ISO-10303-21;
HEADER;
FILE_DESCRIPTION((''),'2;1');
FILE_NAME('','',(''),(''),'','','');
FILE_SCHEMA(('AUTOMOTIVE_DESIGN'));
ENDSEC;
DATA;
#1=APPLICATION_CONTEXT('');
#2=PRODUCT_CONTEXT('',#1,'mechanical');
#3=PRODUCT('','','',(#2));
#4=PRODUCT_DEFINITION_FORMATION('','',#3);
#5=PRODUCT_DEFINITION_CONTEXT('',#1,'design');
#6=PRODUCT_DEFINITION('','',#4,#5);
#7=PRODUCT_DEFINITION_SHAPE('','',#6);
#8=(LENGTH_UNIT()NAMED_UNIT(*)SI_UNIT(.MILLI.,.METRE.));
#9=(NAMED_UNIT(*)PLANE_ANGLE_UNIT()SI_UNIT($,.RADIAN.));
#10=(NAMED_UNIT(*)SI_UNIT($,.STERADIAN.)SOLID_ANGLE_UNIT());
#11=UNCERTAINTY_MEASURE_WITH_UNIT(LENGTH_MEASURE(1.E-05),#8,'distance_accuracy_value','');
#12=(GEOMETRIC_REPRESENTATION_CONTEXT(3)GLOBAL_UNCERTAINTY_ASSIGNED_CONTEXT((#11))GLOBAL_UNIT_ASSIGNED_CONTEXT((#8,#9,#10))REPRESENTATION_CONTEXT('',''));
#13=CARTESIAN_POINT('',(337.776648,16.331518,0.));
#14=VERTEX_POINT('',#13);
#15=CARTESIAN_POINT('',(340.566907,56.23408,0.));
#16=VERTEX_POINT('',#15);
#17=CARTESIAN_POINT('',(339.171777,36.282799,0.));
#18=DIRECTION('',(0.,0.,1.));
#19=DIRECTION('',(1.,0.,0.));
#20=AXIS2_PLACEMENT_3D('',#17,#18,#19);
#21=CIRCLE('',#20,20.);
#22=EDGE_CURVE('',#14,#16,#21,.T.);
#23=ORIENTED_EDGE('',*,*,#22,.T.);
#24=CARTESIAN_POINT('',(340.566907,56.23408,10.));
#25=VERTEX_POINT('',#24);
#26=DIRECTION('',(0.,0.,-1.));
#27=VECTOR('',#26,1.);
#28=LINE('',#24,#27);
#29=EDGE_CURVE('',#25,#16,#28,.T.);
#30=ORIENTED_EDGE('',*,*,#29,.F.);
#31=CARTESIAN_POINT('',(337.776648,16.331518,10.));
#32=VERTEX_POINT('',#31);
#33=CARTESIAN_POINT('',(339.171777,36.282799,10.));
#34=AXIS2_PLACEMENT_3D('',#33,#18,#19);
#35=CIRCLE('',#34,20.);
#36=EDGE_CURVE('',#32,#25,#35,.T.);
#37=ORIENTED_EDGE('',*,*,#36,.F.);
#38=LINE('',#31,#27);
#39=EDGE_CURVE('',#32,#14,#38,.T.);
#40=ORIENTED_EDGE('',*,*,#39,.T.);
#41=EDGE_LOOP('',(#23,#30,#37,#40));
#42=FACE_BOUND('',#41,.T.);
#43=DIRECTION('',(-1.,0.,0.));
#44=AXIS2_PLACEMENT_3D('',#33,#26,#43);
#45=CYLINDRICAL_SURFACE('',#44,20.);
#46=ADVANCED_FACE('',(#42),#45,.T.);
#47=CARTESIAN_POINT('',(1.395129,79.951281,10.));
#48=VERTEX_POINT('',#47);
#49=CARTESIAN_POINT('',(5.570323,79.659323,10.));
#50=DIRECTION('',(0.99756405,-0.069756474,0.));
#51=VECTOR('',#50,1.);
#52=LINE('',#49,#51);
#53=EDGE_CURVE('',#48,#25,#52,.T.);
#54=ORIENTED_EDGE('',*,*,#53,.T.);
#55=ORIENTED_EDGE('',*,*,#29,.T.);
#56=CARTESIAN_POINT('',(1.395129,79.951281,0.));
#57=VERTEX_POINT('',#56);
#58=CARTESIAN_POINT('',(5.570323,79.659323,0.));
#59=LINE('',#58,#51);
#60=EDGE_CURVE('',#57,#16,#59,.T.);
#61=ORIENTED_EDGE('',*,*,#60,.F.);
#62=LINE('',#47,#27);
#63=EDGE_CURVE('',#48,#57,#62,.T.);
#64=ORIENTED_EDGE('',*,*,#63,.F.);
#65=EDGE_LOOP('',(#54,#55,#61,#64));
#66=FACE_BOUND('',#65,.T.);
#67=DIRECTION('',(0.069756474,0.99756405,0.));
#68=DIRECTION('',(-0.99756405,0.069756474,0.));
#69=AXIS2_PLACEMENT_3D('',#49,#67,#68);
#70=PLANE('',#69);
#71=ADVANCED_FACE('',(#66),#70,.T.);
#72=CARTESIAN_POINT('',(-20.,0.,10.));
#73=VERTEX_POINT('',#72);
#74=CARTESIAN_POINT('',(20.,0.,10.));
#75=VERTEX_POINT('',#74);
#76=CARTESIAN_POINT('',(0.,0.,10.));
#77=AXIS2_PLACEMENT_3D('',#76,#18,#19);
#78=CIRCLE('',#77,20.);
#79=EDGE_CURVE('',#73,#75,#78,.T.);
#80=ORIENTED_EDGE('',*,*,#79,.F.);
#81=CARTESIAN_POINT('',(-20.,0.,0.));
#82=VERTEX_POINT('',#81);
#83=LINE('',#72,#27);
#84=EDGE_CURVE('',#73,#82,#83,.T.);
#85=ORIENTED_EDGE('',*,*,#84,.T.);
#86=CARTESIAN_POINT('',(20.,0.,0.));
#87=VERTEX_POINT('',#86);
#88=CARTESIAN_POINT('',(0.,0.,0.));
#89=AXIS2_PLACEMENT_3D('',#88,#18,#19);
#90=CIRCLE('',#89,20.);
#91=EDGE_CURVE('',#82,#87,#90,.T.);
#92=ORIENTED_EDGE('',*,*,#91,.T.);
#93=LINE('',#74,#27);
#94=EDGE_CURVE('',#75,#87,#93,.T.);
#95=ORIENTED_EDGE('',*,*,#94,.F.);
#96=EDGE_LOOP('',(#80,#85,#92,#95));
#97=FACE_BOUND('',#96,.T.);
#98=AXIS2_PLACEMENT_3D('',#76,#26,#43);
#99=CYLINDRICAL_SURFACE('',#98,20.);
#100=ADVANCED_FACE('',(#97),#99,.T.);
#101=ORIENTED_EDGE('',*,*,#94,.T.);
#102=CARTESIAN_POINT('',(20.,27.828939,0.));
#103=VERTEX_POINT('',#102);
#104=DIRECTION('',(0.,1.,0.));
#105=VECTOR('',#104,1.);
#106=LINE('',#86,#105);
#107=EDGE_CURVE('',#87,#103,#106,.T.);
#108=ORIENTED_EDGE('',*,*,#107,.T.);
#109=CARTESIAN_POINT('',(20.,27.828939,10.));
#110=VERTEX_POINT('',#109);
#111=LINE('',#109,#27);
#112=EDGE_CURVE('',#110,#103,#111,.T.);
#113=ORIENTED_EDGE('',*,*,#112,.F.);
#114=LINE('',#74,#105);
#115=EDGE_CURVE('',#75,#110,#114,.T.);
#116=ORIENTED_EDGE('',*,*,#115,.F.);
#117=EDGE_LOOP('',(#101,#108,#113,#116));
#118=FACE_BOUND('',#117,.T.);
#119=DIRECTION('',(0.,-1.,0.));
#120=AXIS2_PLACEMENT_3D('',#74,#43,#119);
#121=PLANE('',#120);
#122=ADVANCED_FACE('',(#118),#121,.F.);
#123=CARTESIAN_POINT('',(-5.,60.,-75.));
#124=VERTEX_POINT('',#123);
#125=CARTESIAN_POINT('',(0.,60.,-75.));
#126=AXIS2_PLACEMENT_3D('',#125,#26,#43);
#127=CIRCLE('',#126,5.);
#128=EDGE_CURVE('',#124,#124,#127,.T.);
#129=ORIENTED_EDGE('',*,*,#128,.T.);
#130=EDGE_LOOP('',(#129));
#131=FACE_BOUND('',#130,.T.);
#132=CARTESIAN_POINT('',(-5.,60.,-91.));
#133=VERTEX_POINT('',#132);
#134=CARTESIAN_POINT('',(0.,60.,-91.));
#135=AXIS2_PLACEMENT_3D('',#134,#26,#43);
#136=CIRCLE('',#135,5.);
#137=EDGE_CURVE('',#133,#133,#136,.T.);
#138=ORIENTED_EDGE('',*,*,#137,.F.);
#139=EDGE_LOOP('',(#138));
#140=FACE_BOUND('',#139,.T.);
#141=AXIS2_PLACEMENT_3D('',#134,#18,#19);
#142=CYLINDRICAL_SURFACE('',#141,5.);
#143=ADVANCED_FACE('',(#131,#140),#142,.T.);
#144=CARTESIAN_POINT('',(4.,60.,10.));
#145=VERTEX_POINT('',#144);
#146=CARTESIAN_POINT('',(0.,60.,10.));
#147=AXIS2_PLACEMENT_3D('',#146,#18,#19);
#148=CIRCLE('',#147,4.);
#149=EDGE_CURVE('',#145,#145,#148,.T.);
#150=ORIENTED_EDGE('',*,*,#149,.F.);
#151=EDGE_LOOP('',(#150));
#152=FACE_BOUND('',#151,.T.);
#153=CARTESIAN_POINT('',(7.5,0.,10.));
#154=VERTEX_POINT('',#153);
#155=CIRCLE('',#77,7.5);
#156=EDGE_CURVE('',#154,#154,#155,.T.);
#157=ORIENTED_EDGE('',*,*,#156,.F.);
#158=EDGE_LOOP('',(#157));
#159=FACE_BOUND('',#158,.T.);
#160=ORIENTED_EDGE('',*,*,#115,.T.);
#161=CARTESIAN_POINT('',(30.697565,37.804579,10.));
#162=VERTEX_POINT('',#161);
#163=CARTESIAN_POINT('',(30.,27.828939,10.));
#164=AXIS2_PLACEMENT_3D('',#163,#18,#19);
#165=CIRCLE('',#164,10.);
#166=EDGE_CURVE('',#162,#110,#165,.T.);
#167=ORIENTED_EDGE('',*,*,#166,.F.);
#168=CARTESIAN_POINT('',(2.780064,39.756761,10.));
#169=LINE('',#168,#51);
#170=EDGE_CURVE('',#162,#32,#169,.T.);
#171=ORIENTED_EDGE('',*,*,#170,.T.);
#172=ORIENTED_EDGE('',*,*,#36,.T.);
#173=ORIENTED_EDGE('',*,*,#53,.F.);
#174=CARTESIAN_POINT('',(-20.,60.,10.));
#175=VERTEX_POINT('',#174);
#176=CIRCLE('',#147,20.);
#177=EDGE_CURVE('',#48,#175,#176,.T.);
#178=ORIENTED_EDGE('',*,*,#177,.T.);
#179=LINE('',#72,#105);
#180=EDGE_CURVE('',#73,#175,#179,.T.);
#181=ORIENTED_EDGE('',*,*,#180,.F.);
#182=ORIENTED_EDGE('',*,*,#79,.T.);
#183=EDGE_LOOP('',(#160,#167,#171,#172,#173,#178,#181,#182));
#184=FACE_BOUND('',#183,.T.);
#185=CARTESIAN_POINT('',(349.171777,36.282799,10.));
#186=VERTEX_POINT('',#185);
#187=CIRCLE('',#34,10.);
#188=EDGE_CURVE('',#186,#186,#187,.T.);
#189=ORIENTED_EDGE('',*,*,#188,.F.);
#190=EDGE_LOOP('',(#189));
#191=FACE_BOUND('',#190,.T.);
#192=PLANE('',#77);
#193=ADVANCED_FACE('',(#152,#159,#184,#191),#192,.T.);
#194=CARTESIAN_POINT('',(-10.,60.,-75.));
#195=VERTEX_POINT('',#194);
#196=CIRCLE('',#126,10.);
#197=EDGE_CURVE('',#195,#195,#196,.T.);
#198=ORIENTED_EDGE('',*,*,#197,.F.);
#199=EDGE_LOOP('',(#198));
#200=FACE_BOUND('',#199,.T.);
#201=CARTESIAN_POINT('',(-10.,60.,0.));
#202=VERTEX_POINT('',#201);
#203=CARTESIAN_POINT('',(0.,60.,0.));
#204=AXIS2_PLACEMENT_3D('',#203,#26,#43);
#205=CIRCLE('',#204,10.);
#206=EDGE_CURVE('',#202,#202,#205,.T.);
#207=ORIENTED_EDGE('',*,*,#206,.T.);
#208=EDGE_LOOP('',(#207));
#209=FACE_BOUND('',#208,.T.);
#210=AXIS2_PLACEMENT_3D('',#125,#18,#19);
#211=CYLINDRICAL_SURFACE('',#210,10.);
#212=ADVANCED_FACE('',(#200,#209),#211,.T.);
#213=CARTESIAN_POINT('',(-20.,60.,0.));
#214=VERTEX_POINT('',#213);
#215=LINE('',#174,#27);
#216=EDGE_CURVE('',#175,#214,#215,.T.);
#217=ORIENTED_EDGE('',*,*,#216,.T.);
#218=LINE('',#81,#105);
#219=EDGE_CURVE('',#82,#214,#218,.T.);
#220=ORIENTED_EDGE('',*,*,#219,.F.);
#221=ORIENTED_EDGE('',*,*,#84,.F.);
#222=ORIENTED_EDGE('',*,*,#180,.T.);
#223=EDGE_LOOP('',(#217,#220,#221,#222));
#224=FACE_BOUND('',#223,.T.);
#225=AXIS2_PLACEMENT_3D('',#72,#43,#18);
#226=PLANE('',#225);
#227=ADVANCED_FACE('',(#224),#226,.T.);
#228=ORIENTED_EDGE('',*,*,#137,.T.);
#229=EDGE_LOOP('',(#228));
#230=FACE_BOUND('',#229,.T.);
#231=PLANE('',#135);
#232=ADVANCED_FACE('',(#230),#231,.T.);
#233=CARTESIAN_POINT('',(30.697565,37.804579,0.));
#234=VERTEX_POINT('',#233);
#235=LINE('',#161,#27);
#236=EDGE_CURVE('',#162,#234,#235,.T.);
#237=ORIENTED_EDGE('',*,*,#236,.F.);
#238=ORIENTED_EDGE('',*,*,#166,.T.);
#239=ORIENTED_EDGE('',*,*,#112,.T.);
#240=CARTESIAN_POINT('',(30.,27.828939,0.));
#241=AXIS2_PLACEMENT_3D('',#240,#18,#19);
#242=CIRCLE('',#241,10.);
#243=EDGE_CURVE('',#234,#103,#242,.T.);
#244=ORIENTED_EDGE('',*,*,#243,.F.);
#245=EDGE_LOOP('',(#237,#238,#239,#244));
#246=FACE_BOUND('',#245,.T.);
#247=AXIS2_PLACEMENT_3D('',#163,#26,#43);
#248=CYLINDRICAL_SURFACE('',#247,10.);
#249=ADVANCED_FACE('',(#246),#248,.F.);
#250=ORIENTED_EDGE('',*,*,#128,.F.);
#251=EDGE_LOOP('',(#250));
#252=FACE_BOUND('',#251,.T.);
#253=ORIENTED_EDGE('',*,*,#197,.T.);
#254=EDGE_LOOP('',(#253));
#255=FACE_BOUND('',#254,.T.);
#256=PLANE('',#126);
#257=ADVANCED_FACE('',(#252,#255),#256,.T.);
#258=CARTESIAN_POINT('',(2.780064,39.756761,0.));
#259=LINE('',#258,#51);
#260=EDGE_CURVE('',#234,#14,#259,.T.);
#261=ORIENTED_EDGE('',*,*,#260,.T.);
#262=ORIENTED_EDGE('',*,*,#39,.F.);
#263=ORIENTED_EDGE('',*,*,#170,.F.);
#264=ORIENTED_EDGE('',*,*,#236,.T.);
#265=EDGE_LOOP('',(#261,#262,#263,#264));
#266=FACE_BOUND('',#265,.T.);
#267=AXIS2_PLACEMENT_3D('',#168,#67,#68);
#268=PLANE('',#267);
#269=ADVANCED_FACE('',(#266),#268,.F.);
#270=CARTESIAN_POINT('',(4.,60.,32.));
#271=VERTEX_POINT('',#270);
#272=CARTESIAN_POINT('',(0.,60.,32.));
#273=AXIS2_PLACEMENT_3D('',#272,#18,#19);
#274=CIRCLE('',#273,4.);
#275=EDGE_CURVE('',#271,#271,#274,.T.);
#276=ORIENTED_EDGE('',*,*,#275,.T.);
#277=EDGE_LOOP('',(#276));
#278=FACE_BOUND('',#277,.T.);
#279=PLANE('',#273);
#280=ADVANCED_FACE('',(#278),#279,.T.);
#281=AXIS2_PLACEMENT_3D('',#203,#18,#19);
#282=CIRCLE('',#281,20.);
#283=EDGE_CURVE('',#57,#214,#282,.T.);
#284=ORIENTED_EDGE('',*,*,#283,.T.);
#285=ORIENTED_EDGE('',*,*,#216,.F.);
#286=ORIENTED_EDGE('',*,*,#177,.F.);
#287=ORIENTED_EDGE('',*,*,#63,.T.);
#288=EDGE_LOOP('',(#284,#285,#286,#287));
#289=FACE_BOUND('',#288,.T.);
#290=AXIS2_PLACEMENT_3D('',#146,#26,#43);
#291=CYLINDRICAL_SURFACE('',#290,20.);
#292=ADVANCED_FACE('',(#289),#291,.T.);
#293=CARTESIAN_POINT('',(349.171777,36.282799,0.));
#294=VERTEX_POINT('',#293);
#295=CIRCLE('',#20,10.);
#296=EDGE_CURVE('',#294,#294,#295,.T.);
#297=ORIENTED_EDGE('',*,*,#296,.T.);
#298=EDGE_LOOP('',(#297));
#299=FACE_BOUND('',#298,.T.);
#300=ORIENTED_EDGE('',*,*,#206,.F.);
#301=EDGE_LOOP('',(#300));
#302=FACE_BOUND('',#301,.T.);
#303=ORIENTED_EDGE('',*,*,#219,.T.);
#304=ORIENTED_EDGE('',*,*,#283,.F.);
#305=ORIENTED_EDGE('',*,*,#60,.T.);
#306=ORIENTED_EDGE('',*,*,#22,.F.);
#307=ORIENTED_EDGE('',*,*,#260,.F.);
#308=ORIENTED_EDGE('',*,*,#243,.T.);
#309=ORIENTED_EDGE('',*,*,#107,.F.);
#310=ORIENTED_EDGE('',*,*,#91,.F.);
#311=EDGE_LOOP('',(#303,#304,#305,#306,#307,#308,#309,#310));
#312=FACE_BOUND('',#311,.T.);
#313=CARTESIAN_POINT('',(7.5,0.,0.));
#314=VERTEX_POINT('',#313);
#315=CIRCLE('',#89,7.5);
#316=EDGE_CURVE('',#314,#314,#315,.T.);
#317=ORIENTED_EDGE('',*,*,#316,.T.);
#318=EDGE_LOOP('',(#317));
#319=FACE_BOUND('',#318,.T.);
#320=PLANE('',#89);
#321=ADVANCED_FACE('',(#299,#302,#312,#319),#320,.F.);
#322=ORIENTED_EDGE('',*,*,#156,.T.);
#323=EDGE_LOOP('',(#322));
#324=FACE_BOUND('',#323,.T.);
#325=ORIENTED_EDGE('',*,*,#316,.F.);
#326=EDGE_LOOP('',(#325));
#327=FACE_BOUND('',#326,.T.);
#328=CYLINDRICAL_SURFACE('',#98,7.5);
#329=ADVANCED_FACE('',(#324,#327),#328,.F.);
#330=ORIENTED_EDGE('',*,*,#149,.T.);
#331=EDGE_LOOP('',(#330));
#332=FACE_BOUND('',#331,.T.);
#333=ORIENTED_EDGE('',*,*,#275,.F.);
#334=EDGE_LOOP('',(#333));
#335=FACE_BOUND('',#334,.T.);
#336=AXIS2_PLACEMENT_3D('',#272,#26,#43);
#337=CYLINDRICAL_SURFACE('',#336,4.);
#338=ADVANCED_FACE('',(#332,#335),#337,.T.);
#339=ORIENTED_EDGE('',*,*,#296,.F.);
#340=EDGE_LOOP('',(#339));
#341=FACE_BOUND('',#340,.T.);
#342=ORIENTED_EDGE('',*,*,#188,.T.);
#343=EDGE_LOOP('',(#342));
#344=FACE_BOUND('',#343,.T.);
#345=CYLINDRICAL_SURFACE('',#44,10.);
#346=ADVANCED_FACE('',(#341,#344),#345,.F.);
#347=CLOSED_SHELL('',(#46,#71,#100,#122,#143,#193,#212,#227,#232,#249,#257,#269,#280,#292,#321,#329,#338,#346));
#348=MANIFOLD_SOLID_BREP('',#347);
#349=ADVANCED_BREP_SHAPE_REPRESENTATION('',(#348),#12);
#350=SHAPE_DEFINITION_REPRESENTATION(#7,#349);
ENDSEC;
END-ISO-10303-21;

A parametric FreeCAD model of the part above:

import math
import FreeCAD as App
import Part
import Sketcher

V = App.Vector
Q = App.Units.Quantity

doc = App.newDocument("Part")
body = doc.addObject("PartDesign::Body", "Body")

# Sketch on XY plane
sketch1 = body.newObject("Sketcher::SketchObject", "Sketch")
sketch1.AttachmentSupport = (doc.getObject("XY_Plane"), [""])
sketch1.MapMode = "FlatFace"
sketch1.addGeometry(Part.LineSegment(V(-20, 60, 0), V(-20, 0, 0)), False)
sketch1.addGeometry(Part.ArcOfCircle(Part.Circle(V(0, 0, 0), V(0, 0, 1), 20), math.radians(180), math.radians(360)), False)
sketch1.addGeometry(Part.LineSegment(V(20, 0, 0), V(20, 28, 0)), False)
sketch1.addGeometry(Part.ArcOfCircle(Part.Circle(V(30, 28, 0), V(0, 0, 1), 10), math.radians(86), math.radians(180)), False)
sketch1.addGeometry(Part.LineSegment(V(31, 38, 0), V(338, 16, 0)), False)
sketch1.addGeometry(Part.ArcOfCircle(Part.Circle(V(339, 36, 0), V(0, 0, 1), 20), math.radians(-94), math.radians(86)), False)
sketch1.addGeometry(Part.LineSegment(V(341, 56, 0), V(1, 80, 0)), False)
sketch1.addGeometry(Part.ArcOfCircle(Part.Circle(V(0, 60, 0), V(0, 0, 1), 20), math.radians(86), math.radians(180)), False)
sketch1.addGeometry(Part.Circle(V(0, 0, 0), V(0, 0, 1), 8), False)
sketch1.addGeometry(Part.Circle(V(339, 36, 0), V(0, 0, 1), 10), False)
sketch1.addConstraint(Sketcher.Constraint("Tangent", 0, 2, 1, 1))
sketch1.addConstraint(Sketcher.Constraint("Tangent", 1, 2, 2, 1))
sketch1.addConstraint(Sketcher.Constraint("Tangent", 2, 2, 3, 2))
sketch1.addConstraint(Sketcher.Constraint("Tangent", 3, 1, 4, 1))
sketch1.addConstraint(Sketcher.Constraint("Tangent", 4, 2, 5, 1))
sketch1.addConstraint(Sketcher.Constraint("Tangent", 5, 2, 6, 1))
sketch1.addConstraint(Sketcher.Constraint("Tangent", 6, 2, 7, 1))
sketch1.addConstraint(Sketcher.Constraint("Tangent", 7, 2, 0, 1))
sketch1.addConstraint(Sketcher.Constraint("Vertical", 0))
sketch1.addConstraint(Sketcher.Constraint("Vertical", 2))
sketch1.addConstraint(Sketcher.Constraint("Coincident", 1, 3, -1, 1))
sketch1.addConstraint(Sketcher.Constraint("Coincident", 8, 3, -1, 1))
sketch1.addConstraint(Sketcher.Constraint("Coincident", 9, 3, 5, 3))
sketch1.addConstraint(Sketcher.Constraint("Equal", 1, 5))
sketch1.addConstraint(Sketcher.Constraint("Equal", 5, 7))
sketch1.addConstraint(Sketcher.Constraint("Equal", 3, 9))
sketch1.addConstraint(Sketcher.Constraint("Parallel", 4, 6))
sketch1.addConstraint(Sketcher.Constraint("Diameter", 8, Q("15 mm")))
sketch1.addConstraint(Sketcher.Constraint("Diameter", 9, Q("20 mm")))
sketch1.addConstraint(Sketcher.Constraint("Radius", 1, Q("20 mm")))
sketch1.addConstraint(Sketcher.Constraint("DistanceY", 0, 2, 0, 1, Q("60 mm")))
sketch1.addConstraint(Sketcher.Constraint("Angle", 4, Q("-4 deg")))
sketch1.addConstraint(Sketcher.Constraint("Distance", 6, Q("340 mm")))
pad1 = body.newObject("PartDesign::Pad", "Pad")
pad1.Profile = sketch1
pad1.Length = 10

# Sketch on XY plane
sketch2 = body.newObject("Sketcher::SketchObject", "Sketch001")
sketch2.AttachmentSupport = (doc.getObject("XY_Plane"), [""])
sketch2.MapMode = "FlatFace"
sketch2.addGeometry(Part.Circle(V(0, 60, 0), V(0, 0, 1), 10), False)
sketch2.addConstraint(Sketcher.Constraint("PointOnObject", 0, 3, -2))
sketch2.addConstraint(Sketcher.Constraint("Diameter", 0, Q("20 mm")))
sketch2.addConstraint(Sketcher.Constraint("DistanceY", -1, 1, 0, 3, Q("60 mm")))
pad2 = body.newObject("PartDesign::Pad", "Pad001")
pad2.Profile = sketch2
pad2.Length = 75
pad2.Reversed = True

# Sketch on XY plane
sketch3 = body.newObject("Sketcher::SketchObject", "Sketch002")
sketch3.AttachmentSupport = (doc.getObject("XY_Plane"), [""])
sketch3.MapMode = "FlatFace"
sketch3.AttachmentOffset = App.Placement(V(0, 0, -75), App.Rotation())
sketch3.addGeometry(Part.Circle(V(0, 60, 0), V(0, 0, 1), 5), False)
sketch3.addConstraint(Sketcher.Constraint("PointOnObject", 0, 3, -2))
sketch3.addConstraint(Sketcher.Constraint("Diameter", 0, Q("10 mm")))
sketch3.addConstraint(Sketcher.Constraint("DistanceY", -1, 1, 0, 3, Q("60 mm")))
pad3 = body.newObject("PartDesign::Pad", "Pad002")
pad3.Profile = sketch3
pad3.Length = 16
pad3.Reversed = True

# Sketch on XY plane
sketch4 = body.newObject("Sketcher::SketchObject", "Sketch003")
sketch4.AttachmentSupport = (doc.getObject("XY_Plane"), [""])
sketch4.MapMode = "FlatFace"
sketch4.AttachmentOffset = App.Placement(V(0, 0, 10), App.Rotation())
sketch4.addGeometry(Part.Circle(V(0, 60, 0), V(0, 0, 1), 4), False)
sketch4.addConstraint(Sketcher.Constraint("PointOnObject", 0, 3, -2))
sketch4.addConstraint(Sketcher.Constraint("Diameter", 0, Q("8 mm")))
sketch4.addConstraint(Sketcher.Constraint("DistanceY", -1, 1, 0, 3, Q("60 mm")))
pad4 = body.newObject("PartDesign::Pad", "Pad003")
pad4.Profile = sketch4
pad4.Length = 22

doc.recompute()
